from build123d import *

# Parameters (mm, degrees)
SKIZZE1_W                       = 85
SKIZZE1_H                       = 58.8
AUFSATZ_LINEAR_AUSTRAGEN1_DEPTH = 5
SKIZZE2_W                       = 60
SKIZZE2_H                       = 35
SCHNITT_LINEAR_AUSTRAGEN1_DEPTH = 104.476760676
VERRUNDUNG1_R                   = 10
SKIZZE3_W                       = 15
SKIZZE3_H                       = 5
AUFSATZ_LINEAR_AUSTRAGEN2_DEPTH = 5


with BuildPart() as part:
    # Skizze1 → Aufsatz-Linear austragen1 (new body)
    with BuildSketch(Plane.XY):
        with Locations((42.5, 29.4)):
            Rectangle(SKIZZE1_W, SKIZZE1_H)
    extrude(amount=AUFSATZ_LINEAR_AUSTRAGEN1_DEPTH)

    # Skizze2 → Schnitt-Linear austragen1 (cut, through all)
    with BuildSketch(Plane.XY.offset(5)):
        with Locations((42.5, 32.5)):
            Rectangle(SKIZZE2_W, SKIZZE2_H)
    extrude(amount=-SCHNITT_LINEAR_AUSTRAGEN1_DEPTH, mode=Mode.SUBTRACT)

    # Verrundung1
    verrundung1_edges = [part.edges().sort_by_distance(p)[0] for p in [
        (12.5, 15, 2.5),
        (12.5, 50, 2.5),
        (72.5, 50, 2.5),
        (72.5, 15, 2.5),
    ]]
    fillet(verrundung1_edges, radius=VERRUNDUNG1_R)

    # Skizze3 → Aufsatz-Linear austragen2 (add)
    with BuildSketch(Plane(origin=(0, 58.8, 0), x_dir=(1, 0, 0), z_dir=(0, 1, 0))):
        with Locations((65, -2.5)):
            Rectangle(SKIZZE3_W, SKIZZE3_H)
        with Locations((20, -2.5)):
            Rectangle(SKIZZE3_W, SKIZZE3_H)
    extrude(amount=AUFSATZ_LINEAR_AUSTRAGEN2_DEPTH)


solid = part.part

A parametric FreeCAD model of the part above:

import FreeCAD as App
import Part
import Sketcher
Q = App.Units.Quantity


def edges_at(feature, points):
    """Names of the edges that pass closest to the given points."""
    edges = feature.Shape.Edges
    near = lambda p: min(range(len(edges)), key=lambda i: edges[i].distToShape(Part.Vertex(*p))[0])
    return sorted({f"Edge{near(p) + 1}" for p in points})

doc = App.newDocument("Part")
params = doc.addObject("Spreadsheet::Sheet", "Params")
for row, (alias, value) in enumerate([
    ("sketch1_width", "85 mm"),
    ("sketch1_height", "58.8 mm"),
    ("pad1_length", "5 mm"),
    ("sketch2_width", "60 mm"),
    ("sketch2_height", "35 mm"),
    ("fillet_radius", "10 mm"),
    ("sketch3_width", "15 mm"),
    ("sketch3_height", "5 mm"),
    ("pad2_length", "5 mm"),
], start=1):
    params.set(f"A{row}", alias)
    params.set(f"B{row}", "=" + value)
    params.setAlias(f"B{row}", alias)

body = doc.addObject("PartDesign::Body", "Body")

# Sketch on XY plane
sketch1 = body.newObject("Sketcher::SketchObject", "Sketch")
sketch1.AttachmentSupport = (doc.getObject("XY_Plane"), [""])
sketch1.MapMode = "FlatFace"
sketch1.addGeometry([
    Part.LineSegment(App.Vector(0, 59, 0), App.Vector(0, 0, 0)),
    Part.LineSegment(App.Vector(0, 0, 0), App.Vector(85, 0, 0)),
    Part.LineSegment(App.Vector(85, 0, 0), App.Vector(85, 59, 0)),
    Part.LineSegment(App.Vector(85, 59, 0), App.Vector(0, 59, 0)),
], False)
sketch1.addConstraint([
    Sketcher.Constraint("Coincident", 0, 2, 1, 1),
    Sketcher.Constraint("Coincident", 1, 2, 2, 1),
    Sketcher.Constraint("Coincident", 2, 2, 3, 1),
    Sketcher.Constraint("Coincident", 3, 2, 0, 1),
    Sketcher.Constraint("Vertical", 0),
    Sketcher.Constraint("Horizontal", 1),
    Sketcher.Constraint("Vertical", 2),
    Sketcher.Constraint("Horizontal", 3),
    Sketcher.Constraint("Coincident", 0, 2, -1, 1),
    Sketcher.Constraint("DistanceX", 1, 1, 1, 2, Q("85 mm")),
    Sketcher.Constraint("DistanceY", 0, 2, 0, 1, Q("58.8 mm")),
])
sketch1.setExpression("Constraints[9]", "Params.sketch1_width")
sketch1.setExpression("Constraints[10]", "Params.sketch1_height")
pad1 = body.newObject("PartDesign::Pad", "Pad")
pad1.Profile = sketch1
pad1.setExpression("Length", "Params.pad1_length")

# Sketch on XY plane
sketch2 = body.newObject("Sketcher::SketchObject", "Sketch001")
sketch2.AttachmentSupport = (doc.getObject("XY_Plane"), [""])
sketch2.MapMode = "FlatFace"
sketch2.AttachmentOffset = App.Placement(App.Vector(0, 0, 5), App.Rotation())
sketch2.addGeometry([
    Part.LineSegment(App.Vector(12, 50, 0), App.Vector(12, 15, 0)),
    Part.LineSegment(App.Vector(12, 15, 0), App.Vector(72, 15, 0)),
    Part.LineSegment(App.Vector(72, 15, 0), App.Vector(72, 50, 0)),
    Part.LineSegment(App.Vector(72, 50, 0), App.Vector(12, 50, 0)),
], False)
sketch2.addConstraint([
    Sketcher.Constraint("Coincident", 0, 2, 1, 1),
    Sketcher.Constraint("Coincident", 1, 2, 2, 1),
    Sketcher.Constraint("Coincident", 2, 2, 3, 1),
    Sketcher.Constraint("Coincident", 3, 2, 0, 1),
    Sketcher.Constraint("Vertical", 0),
    Sketcher.Constraint("Horizontal", 1),
    Sketcher.Constraint("Vertical", 2),
    Sketcher.Constraint("Horizontal", 3),
    Sketcher.Constraint("DistanceX", 1, 1, 1, 2, Q("60 mm")),
    Sketcher.Constraint("DistanceY", 0, 2, 0, 1, Q("35 mm")),
    Sketcher.Constraint("DistanceY", -1, 1, 0, 2, Q("15 mm")),
    Sketcher.Constraint("DistanceX", -1, 1, 0, 2, Q("12.5 mm")),
])
sketch2.setExpression("Constraints[8]", "Params.sketch2_width")
sketch2.setExpression("Constraints[9]", "Params.sketch2_height")
pocket1 = body.newObject("PartDesign::Pocket", "Pocket")
pocket1.Profile = sketch2
pocket1.Type = "ThroughAll"
doc.recompute()

fillet = body.newObject("PartDesign::Fillet", "Fillet")
fillet.Base = (pocket1, edges_at(pocket1, [
    (12.5, 15, 2.5),
    (12.5, 50, 2.5),
    (72.5, 50, 2.5),
    (72.5, 15, 2.5),
]))
fillet.setExpression("Radius", "Params.fillet_radius")

# Sketch on XZ plane
sketch3 = body.newObject("Sketcher::SketchObject", "Sketch002")
sketch3.AttachmentSupport = (doc.getObject("XZ_Plane"), [""])
sketch3.MapMode = "FlatFace"
sketch3.AttachmentOffset = App.Placement(App.Vector(0, 0, -58.8), App.Rotation())
sketch3.addGeometry([
    Part.LineSegment(App.Vector(58, 0, 0), App.Vector(58, 5, 0)),  # 0
    Part.LineSegment(App.Vector(58, 5, 0), App.Vector(72, 5, 0)),  # 1
    Part.LineSegment(App.Vector(72, 5, 0), App.Vector(72, 0, 0)),  # 2
    Part.LineSegment(App.Vector(72, 0, 0), App.Vector(58, 0, 0)),  # 3
    Part.LineSegment(App.Vector(12, 0, 0), App.Vector(12, 5, 0)),  # 4
    Part.LineSegment(App.Vector(12, 5, 0), App.Vector(28, 5, 0)),  # 5
    Part.LineSegment(App.Vector(28, 5, 0), App.Vector(28, 0, 0)),  # 6
    Part.LineSegment(App.Vector(28, 0, 0), App.Vector(12, 0, 0)),  # 7
], False)
sketch3.addConstraint([
    Sketcher.Constraint("Coincident", 0, 2, 1, 1),
    Sketcher.Constraint("Coincident", 1, 2, 2, 1),
    Sketcher.Constraint("Coincident", 2, 2, 3, 1),
    Sketcher.Constraint("Coincident", 3, 2, 0, 1),
    Sketcher.Constraint("Coincident", 4, 2, 5, 1),
    Sketcher.Constraint("Coincident", 5, 2, 6, 1),
    Sketcher.Constraint("Coincident", 6, 2, 7, 1),
    Sketcher.Constraint("Coincident", 7, 2, 4, 1),
    Sketcher.Constraint("Vertical", 0),
    Sketcher.Constraint("Horizontal", 1),
    Sketcher.Constraint("Vertical", 2),
    Sketcher.Constraint("Horizontal", 3),
    Sketcher.Constraint("Vertical", 4),
    Sketcher.Constraint("Horizontal", 5),
    Sketcher.Constraint("Vertical", 6),
    Sketcher.Constraint("Horizontal", 7),
    Sketcher.Constraint("PointOnObject", 2, 2, -1),
    Sketcher.Constraint("PointOnObject", 6, 2, -1),
    Sketcher.Constraint("Horizontal", 1, 2, 4, 2),
    Sketcher.Constraint("Equal", 3, 5),
    Sketcher.Constraint("DistanceX", 1, 1, 1, 2, Q("15 mm")),
    Sketcher.Constraint("DistanceY", 0, 1, 0, 2, Q("5 mm")),
    Sketcher.Constraint("DistanceX", 4, 2, 0, 2, Q("45 mm")),
    Sketcher.Constraint("DistanceX", -1, 1, 0, 2, Q("57.5 mm")),
])
sketch3.setExpression("Constraints[20]", "Params.sketch3_width")
sketch3.setExpression("Constraints[21]", "Params.sketch3_height")
pad2 = body.newObject("PartDesign::Pad", "Pad001")
pad2.Profile = sketch3
pad2.setExpression("Length", "Params.pad2_length")
pad2.Reversed = True

doc.recompute()
